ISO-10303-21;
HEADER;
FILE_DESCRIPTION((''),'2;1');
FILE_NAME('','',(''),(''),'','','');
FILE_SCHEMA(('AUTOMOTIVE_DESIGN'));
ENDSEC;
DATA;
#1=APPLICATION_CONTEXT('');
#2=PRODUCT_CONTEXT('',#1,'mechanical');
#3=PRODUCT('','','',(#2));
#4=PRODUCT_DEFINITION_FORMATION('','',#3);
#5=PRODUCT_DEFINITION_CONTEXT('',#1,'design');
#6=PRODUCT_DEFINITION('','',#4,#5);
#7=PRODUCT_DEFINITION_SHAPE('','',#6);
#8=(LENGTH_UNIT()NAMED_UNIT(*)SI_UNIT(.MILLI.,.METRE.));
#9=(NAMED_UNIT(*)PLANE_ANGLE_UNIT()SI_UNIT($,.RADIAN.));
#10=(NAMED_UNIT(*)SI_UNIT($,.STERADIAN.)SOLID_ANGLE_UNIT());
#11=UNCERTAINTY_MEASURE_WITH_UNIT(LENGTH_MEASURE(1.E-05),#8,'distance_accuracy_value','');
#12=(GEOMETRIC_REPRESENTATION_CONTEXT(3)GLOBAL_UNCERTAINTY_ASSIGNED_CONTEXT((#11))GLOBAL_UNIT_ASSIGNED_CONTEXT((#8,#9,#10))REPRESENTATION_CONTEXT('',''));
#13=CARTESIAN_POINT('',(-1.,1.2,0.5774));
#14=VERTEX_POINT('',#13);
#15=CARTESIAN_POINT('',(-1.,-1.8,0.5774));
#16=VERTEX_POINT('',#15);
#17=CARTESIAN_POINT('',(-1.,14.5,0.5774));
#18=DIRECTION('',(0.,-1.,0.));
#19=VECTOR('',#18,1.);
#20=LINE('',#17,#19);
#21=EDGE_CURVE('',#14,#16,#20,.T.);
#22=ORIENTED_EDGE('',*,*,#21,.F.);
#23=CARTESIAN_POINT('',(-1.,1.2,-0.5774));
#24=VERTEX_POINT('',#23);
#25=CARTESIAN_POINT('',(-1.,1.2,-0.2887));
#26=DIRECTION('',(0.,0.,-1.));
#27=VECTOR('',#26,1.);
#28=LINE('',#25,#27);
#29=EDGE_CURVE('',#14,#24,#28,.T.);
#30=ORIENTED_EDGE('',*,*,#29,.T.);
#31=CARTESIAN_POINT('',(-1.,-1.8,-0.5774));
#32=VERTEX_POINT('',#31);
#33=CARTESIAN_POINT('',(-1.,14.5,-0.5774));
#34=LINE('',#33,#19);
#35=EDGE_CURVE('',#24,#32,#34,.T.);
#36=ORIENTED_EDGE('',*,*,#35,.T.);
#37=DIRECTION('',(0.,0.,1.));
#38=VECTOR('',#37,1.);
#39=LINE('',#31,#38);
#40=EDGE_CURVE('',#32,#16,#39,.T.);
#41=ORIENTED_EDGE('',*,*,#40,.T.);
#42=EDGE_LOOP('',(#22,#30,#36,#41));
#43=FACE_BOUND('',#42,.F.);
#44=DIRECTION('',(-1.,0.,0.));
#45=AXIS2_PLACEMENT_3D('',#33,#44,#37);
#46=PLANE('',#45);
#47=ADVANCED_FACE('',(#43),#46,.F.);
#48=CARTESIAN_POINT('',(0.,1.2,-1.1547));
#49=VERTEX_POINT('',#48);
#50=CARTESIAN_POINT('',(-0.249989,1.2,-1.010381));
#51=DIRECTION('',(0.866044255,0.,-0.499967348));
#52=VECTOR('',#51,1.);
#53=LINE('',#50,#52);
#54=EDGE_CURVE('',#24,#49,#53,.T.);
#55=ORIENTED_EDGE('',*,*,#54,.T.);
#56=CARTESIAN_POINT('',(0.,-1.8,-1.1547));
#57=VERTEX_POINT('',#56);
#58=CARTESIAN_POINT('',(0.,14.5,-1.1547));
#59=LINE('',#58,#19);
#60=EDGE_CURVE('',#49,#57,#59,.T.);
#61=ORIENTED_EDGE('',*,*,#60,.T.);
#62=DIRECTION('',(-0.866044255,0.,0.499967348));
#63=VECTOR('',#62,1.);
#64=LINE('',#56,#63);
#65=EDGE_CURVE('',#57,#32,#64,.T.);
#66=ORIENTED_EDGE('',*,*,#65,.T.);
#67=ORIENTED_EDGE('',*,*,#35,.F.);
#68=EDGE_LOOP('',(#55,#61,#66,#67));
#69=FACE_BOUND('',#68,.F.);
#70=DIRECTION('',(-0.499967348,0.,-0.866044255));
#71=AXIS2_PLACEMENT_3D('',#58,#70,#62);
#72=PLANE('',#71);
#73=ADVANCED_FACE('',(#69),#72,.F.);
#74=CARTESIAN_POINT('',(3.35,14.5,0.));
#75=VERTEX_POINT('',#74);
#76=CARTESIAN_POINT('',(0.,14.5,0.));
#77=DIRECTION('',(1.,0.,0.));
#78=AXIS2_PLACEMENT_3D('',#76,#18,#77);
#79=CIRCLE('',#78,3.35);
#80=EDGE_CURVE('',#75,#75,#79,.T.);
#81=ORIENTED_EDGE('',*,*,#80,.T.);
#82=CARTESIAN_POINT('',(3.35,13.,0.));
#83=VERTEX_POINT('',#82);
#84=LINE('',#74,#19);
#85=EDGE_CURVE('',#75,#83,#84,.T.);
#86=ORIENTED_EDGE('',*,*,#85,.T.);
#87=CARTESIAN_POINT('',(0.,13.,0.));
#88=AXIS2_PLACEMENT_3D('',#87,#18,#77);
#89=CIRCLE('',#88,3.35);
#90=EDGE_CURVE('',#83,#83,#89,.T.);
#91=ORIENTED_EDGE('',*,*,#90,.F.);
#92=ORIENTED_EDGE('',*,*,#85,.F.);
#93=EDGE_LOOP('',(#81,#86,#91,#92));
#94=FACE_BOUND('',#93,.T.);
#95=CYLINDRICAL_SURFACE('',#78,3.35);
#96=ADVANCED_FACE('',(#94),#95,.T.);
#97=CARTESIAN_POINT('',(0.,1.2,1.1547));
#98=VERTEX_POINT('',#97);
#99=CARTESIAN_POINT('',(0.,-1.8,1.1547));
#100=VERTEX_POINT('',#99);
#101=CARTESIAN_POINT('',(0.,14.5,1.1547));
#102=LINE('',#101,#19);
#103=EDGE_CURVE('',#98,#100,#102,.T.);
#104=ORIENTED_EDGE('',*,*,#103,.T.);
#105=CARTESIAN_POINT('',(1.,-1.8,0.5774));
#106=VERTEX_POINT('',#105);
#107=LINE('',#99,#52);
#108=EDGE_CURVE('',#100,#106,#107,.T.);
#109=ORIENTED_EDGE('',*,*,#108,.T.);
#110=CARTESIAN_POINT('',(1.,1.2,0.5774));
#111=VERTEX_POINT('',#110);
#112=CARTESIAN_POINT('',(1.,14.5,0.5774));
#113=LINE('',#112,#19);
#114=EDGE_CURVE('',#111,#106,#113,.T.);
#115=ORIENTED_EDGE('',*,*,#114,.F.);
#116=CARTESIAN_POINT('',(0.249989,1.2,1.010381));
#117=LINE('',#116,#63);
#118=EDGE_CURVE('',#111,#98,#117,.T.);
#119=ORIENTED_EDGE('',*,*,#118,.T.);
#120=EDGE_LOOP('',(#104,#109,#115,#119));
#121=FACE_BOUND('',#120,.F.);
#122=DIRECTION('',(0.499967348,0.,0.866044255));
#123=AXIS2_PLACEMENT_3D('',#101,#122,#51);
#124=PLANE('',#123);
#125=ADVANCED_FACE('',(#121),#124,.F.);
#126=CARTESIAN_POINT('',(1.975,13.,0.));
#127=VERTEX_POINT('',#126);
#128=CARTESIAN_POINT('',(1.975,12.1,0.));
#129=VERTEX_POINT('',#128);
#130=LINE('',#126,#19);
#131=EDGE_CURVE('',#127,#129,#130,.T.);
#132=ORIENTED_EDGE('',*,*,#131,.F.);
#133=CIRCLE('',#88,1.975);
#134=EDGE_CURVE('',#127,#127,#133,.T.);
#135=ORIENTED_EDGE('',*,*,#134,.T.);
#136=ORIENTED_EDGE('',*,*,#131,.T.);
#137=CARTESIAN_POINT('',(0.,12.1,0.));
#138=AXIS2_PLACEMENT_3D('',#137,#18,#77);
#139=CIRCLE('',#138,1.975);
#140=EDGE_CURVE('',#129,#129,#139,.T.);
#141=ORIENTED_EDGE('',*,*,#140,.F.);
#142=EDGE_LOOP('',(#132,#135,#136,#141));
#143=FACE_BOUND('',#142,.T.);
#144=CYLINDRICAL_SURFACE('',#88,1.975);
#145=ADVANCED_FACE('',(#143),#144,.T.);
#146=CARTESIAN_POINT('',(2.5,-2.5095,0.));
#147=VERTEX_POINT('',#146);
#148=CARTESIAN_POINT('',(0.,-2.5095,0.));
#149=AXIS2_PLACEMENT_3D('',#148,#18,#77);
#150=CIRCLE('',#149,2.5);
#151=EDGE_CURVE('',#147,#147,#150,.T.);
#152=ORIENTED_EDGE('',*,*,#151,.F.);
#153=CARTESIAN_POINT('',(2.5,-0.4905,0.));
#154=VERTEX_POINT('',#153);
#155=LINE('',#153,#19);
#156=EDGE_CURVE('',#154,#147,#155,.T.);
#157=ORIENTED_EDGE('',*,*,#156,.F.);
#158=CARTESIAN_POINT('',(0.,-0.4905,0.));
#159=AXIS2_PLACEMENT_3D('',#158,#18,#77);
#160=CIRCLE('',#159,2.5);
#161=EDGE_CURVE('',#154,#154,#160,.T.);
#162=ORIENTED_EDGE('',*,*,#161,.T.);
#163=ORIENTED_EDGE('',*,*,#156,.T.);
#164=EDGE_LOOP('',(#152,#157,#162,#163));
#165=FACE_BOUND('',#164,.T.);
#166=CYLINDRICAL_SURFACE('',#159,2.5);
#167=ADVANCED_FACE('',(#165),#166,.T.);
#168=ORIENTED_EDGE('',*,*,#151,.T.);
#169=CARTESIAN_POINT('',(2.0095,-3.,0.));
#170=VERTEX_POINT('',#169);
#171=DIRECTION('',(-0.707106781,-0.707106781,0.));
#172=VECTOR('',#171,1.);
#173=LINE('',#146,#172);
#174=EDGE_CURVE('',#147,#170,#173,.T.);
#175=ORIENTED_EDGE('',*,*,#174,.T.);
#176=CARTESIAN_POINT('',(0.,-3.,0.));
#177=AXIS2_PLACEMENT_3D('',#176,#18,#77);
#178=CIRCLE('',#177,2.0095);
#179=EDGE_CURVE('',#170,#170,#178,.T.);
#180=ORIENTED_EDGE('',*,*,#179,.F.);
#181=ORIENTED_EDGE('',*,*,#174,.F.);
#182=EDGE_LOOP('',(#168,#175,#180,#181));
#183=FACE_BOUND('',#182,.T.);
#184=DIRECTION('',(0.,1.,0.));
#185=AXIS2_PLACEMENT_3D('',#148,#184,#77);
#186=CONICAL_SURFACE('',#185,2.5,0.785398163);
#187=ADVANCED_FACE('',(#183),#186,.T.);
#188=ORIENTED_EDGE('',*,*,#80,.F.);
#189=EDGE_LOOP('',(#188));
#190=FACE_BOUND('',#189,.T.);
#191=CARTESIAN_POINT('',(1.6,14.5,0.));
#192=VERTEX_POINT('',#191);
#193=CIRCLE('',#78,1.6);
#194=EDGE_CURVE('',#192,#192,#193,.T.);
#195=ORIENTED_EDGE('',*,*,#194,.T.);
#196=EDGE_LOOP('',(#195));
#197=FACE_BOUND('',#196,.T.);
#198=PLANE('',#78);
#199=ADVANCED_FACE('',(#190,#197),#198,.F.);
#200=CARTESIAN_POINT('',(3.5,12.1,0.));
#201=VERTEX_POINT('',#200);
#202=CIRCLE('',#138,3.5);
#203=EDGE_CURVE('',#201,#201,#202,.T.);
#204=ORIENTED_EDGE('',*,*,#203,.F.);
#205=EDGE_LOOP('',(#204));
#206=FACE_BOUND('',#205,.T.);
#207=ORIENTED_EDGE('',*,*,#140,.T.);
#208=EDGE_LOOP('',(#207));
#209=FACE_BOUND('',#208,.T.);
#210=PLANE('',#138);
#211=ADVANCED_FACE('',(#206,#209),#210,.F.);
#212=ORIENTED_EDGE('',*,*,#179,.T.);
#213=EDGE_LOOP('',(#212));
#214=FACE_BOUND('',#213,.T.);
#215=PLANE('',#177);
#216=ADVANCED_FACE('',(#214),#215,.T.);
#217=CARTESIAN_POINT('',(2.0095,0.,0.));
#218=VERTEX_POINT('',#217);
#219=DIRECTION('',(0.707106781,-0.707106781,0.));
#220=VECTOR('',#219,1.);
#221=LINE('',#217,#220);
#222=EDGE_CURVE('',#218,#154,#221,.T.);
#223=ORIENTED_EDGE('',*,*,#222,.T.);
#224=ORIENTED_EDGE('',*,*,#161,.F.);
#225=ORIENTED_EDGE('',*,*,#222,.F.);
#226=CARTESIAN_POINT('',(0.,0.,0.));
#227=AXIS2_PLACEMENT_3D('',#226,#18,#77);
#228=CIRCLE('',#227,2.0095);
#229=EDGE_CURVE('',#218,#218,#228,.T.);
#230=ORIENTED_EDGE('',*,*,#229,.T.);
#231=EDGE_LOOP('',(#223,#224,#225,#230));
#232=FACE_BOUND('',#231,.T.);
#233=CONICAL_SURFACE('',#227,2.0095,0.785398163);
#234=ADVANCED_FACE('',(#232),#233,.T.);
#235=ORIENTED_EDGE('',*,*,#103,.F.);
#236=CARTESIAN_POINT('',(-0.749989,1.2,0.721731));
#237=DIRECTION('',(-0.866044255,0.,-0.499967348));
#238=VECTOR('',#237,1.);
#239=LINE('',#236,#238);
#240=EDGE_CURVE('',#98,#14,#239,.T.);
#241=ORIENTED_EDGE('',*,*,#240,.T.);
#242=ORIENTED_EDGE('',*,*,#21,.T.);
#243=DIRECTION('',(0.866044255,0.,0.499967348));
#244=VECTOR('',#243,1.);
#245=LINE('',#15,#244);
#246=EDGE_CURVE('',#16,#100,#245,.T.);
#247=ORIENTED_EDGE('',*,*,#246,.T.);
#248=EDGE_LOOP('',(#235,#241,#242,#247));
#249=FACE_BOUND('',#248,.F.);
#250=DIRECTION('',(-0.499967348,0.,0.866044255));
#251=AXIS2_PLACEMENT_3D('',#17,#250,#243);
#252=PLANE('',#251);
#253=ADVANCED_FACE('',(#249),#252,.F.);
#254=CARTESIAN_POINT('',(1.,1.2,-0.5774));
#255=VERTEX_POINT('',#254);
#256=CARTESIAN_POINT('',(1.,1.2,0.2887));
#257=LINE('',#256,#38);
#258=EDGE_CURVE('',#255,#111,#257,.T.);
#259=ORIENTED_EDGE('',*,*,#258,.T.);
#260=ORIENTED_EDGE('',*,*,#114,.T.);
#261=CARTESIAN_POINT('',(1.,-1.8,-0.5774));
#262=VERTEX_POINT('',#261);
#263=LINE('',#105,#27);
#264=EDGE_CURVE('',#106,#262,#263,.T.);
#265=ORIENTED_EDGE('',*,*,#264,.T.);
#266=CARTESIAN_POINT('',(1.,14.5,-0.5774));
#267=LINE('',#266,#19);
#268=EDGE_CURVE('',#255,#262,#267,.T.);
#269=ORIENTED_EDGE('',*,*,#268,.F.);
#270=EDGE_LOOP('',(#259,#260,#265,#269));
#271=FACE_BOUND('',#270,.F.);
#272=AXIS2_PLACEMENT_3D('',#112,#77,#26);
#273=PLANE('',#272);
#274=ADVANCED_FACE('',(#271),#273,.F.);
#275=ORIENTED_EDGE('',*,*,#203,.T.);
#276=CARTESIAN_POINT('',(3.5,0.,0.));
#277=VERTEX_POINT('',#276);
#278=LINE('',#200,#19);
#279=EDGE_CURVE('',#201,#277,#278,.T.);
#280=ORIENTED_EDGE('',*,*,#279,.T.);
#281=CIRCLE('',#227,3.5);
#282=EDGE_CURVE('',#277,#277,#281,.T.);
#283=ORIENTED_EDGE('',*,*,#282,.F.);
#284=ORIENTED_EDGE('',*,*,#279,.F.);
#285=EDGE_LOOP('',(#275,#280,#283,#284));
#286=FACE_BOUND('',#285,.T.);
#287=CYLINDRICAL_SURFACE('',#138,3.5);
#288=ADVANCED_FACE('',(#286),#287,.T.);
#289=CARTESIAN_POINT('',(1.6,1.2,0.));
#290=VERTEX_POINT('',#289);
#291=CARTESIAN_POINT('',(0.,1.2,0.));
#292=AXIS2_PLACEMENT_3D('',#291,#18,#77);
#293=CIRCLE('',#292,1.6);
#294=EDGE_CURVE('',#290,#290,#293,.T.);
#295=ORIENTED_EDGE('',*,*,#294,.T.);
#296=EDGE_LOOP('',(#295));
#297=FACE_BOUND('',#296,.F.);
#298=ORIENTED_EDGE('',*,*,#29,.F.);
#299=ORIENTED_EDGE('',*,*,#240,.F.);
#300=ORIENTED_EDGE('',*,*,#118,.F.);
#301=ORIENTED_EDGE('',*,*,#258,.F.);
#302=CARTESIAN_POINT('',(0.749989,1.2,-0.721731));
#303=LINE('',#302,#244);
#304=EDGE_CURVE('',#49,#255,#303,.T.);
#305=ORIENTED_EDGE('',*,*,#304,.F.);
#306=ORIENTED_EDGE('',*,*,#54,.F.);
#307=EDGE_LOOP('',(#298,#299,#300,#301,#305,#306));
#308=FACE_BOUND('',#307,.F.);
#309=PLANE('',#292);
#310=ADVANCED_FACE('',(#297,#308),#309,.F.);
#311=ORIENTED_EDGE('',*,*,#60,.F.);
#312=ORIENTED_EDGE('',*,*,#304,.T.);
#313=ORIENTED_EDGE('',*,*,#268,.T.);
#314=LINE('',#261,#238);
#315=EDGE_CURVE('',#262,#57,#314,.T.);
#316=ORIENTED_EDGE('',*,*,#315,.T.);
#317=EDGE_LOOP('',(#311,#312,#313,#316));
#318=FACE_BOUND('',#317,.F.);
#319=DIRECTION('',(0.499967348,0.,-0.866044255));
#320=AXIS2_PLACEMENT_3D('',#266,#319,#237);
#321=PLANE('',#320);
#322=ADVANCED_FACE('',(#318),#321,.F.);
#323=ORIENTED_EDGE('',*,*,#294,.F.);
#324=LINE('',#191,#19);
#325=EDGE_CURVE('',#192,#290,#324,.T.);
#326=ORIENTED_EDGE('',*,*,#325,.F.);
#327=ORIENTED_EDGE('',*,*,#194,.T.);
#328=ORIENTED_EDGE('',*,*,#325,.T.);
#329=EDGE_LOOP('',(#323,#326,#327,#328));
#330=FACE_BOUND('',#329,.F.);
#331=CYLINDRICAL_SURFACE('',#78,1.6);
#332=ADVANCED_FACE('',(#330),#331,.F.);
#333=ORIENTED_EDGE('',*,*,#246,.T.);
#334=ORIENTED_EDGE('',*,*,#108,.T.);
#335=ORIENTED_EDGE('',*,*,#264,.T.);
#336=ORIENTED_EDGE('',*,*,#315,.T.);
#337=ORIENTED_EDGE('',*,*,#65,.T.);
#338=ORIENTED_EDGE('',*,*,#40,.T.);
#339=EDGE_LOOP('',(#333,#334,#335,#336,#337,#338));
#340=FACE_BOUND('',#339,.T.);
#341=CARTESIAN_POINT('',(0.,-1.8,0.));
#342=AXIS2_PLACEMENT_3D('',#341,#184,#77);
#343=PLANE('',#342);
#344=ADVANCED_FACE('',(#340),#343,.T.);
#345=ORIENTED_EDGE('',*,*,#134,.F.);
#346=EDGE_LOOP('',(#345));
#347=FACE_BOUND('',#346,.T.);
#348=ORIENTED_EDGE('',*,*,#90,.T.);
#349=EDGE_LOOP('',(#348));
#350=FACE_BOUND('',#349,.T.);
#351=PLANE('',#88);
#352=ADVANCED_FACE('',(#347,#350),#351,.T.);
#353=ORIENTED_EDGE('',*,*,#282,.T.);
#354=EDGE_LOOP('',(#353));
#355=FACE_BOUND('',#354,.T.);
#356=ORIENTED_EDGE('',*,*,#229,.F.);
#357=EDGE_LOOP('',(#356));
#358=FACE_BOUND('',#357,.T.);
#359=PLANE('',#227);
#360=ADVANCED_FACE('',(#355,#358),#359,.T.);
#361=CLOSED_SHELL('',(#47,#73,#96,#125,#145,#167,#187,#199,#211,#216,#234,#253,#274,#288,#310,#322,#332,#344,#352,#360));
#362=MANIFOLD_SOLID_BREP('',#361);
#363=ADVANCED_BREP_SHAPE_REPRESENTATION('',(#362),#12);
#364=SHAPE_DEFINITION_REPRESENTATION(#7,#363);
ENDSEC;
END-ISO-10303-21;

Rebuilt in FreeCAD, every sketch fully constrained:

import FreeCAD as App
import Part
import Sketcher
from FreeCAD import Vector
Q = App.Units.Quantity

doc = App.newDocument("Part")
body = doc.addObject("PartDesign::Body", "Body")

# Sketch on XY plane
sketch1 = body.newObject("Sketcher::SketchObject", "Sketch")
sketch1.AttachmentSupport = (doc.getObject("XY_Plane"), [""])
sketch1.MapMode = "FlatFace"
sketch1.addGeometry(Part.LineSegment(Vector(0, 14.5, 0), Vector(0, -3, 0)), False)
sketch1.addGeometry(Part.LineSegment(Vector(0, -3, 0), Vector(2.0095, -3, 0)), False)
sketch1.addGeometry(Part.LineSegment(Vector(2.0095, -3, 0), Vector(2.5, -2.5095, 0)), False)
sketch1.addGeometry(Part.LineSegment(Vector(2.5, -2.5095, 0), Vector(2.5, -0.4905, 0)), False)
sketch1.addGeometry(Part.LineSegment(Vector(2.5, -0.4905, 0), Vector(2.0095, 0, 0)), False)
sketch1.addGeometry(Part.LineSegment(Vector(2.0095, 0, 0), Vector(3.5, 0, 0)), False)
sketch1.addGeometry(Part.LineSegment(Vector(3.5, 0, 0), Vector(3.5, 12.1, 0)), False)
sketch1.addGeometry(Part.LineSegment(Vector(3.5, 12.1, 0), Vector(1.975, 12.1, 0)), False)
sketch1.addGeometry(Part.LineSegment(Vector(1.975, 12.1, 0), Vector(1.975, 13, 0)), False)
sketch1.addGeometry(Part.LineSegment(Vector(1.975, 13, 0), Vector(3.35, 13, 0)), False)
sketch1.addGeometry(Part.LineSegment(Vector(3.35, 13, 0), Vector(3.35, 14.5, 0)), False)
sketch1.addGeometry(Part.LineSegment(Vector(3.35, 14.5, 0), Vector(0, 14.5, 0)), False)
sketch1.addConstraint(Sketcher.Constraint("Coincident", 0, 2, 1, 1))
sketch1.addConstraint(Sketcher.Constraint("Coincident", 1, 2, 2, 1))
sketch1.addConstraint(Sketcher.Constraint("Coincident", 2, 2, 3, 1))
sketch1.addConstraint(Sketcher.Constraint("Coincident", 3, 2, 4, 1))
sketch1.addConstraint(Sketcher.Constraint("Coincident", 4, 2, 5, 1))
sketch1.addConstraint(Sketcher.Constraint("Coincident", 5, 2, 6, 1))
sketch1.addConstraint(Sketcher.Constraint("Coincident", 6, 2, 7, 1))
sketch1.addConstraint(Sketcher.Constraint("Coincident", 7, 2, 8, 1))
sketch1.addConstraint(Sketcher.Constraint("Coincident", 8, 2, 9, 1))
sketch1.addConstraint(Sketcher.Constraint("Coincident", 9, 2, 10, 1))
sketch1.addConstraint(Sketcher.Constraint("Coincident", 10, 2, 11, 1))
sketch1.addConstraint(Sketcher.Constraint("Coincident", 11, 2, 0, 1))
sketch1.addConstraint(Sketcher.Constraint("Vertical", 0))
sketch1.addConstraint(Sketcher.Constraint("Horizontal", 1))
sketch1.addConstraint(Sketcher.Constraint("Vertical", 3))
sketch1.addConstraint(Sketcher.Constraint("Horizontal", 5))
sketch1.addConstraint(Sketcher.Constraint("Vertical", 6))
sketch1.addConstraint(Sketcher.Constraint("Horizontal", 7))
sketch1.addConstraint(Sketcher.Constraint("Vertical", 8))
sketch1.addConstraint(Sketcher.Constraint("Horizontal", 9))
sketch1.addConstraint(Sketcher.Constraint("Vertical", 10))
sketch1.addConstraint(Sketcher.Constraint("Horizontal", 11))
sketch1.addConstraint(Sketcher.Constraint("PointOnObject", 0, 2, -2))
sketch1.addConstraint(Sketcher.Constraint("PointOnObject", 4, 2, -1))
sketch1.addConstraint(Sketcher.Constraint("Perpendicular", 2, 4))
sketch1.addConstraint(Sketcher.Constraint("Vertical", 1, 2, 4, 2))
sketch1.addConstraint(Sketcher.Constraint("Equal", 2, 4))
sketch1.addConstraint(Sketcher.Constraint("DistanceY", 0, 2, 0, 1, Q("17.5 mm")))
sketch1.addConstraint(Sketcher.Constraint("DistanceY", 6, 1, 6, 2, Q("12.1 mm")))
sketch1.addConstraint(Sketcher.Constraint("DistanceY", 8, 1, 8, 2, Q("0.9 mm")))
sketch1.addConstraint(Sketcher.Constraint("DistanceY", 10, 1, 10, 2, Q("1.5 mm")))
sketch1.addConstraint(Sketcher.Constraint("DistanceX", 3, 2, 5, 2, Q("1 mm")))
sketch1.addConstraint(Sketcher.Constraint("DistanceX", 11, 2, 11, 1, Q("3.35 mm")))
sketch1.addConstraint(Sketcher.Constraint("DistanceX", -1, 1, 2, 2, Q("2.5 mm")))
sketch1.addConstraint(Sketcher.Constraint("DistanceX", 7, 2, 7, 1, Q("1.525 mm")))
sketch1.addConstraint(Sketcher.Constraint("DistanceY", 3, 1, 3, 2, Q("2.019 mm")))
revolution = body.newObject("PartDesign::Revolution", "Revolution")
revolution.Profile = sketch1
revolution.ReferenceAxis = (sketch1, ["V_Axis"])
revolution.Angle = 360

# Sketch on XY plane
sketch2 = body.newObject("Sketcher::SketchObject", "Sketch001")
sketch2.AttachmentSupport = (doc.getObject("XY_Plane"), [""])
sketch2.MapMode = "FlatFace"
sketch2.addGeometry(Part.LineSegment(Vector(0, 14.5, 0), Vector(0, 1.2, 0)), False)
sketch2.addGeometry(Part.LineSegment(Vector(0, 1.2, 0), Vector(1.6, 1.2, 0)), False)
sketch2.addGeometry(Part.LineSegment(Vector(1.6, 1.2, 0), Vector(1.6, 14.5, 0)), False)
sketch2.addGeometry(Part.LineSegment(Vector(1.6, 14.5, 0), Vector(0, 14.5, 0)), False)
sketch2.addConstraint(Sketcher.Constraint("Coincident", 0, 2, 1, 1))
sketch2.addConstraint(Sketcher.Constraint("Coincident", 1, 2, 2, 1))
sketch2.addConstraint(Sketcher.Constraint("Coincident", 2, 2, 3, 1))
sketch2.addConstraint(Sketcher.Constraint("Coincident", 3, 2, 0, 1))
sketch2.addConstraint(Sketcher.Constraint("Vertical", 0))
sketch2.addConstraint(Sketcher.Constraint("Horizontal", 1))
sketch2.addConstraint(Sketcher.Constraint("Vertical", 2))
sketch2.addConstraint(Sketcher.Constraint("Horizontal", 3))
sketch2.addConstraint(Sketcher.Constraint("PointOnObject", 0, 2, -2))
sketch2.addConstraint(Sketcher.Constraint("DistanceX", 1, 1, 1, 2, Q("1.6 mm")))
sketch2.addConstraint(Sketcher.Constraint("DistanceY", 0, 2, 0, 1, Q("13.3 mm")))
sketch2.addConstraint(Sketcher.Constraint("DistanceY", -1, 1, 0, 2, Q("1.2 mm")))
groove = body.newObject("PartDesign::Groove", "Groove")
groove.Profile = sketch2
groove.ReferenceAxis = (sketch2, ["V_Axis"])
groove.Angle = 360

# Sketch on XZ plane
sketch3 = body.newObject("Sketcher::SketchObject", "Sketch002")
sketch3.AttachmentSupport = (doc.getObject("XZ_Plane"), [""])
sketch3.MapMode = "FlatFace"
sketch3.AttachmentOffset = App.Placement(Vector(0, 0, -14.5), App.Rotation())
sketch3.addGeometry(Part.LineSegment(Vector(0, -1.1547, 0), Vector(-1, -0.5774, 0)), False)
sketch3.addGeometry(Part.LineSegment(Vector(-1, -0.5774, 0), Vector(-1, 0.5774, 0)), False)
sketch3.addGeometry(Part.LineSegment(Vector(-1, 0.5774, 0), Vector(0, 1.1547, 0)), False)
sketch3.addGeometry(Part.LineSegment(Vector(0, 1.1547, 0), Vector(1, 0.5774, 0)), False)
sketch3.addGeometry(Part.LineSegment(Vector(1, 0.5774, 0), Vector(1, -0.5774, 0)), False)
sketch3.addGeometry(Part.LineSegment(Vector(1, -0.5774, 0), Vector(0, -1.1547, 0)), False)
sketch3.addConstraint(Sketcher.Constraint("Coincident", 0, 2, 1, 1))
sketch3.addConstraint(Sketcher.Constraint("Coincident", 1, 2, 2, 1))
sketch3.addConstraint(Sketcher.Constraint("Coincident", 2, 2, 3, 1))
sketch3.addConstraint(Sketcher.Constraint("Coincident", 3, 2, 4, 1))
sketch3.addConstraint(Sketcher.Constraint("Coincident", 4, 2, 5, 1))
sketch3.addConstraint(Sketcher.Constraint("Coincident", 5, 2, 0, 1))
sketch3.addConstraint(Sketcher.Constraint("Vertical", 1))
sketch3.addConstraint(Sketcher.Constraint("Vertical", 4))
sketch3.addConstraint(Sketcher.Constraint("Symmetric", 0, 2, 3, 2, -1, 1))
sketch3.addConstraint(Sketcher.Constraint("Symmetric", 2, 2, 5, 2, -1, 1))
sketch3.addConstraint(Sketcher.Constraint("PointOnObject", 2, 2, -2))
sketch3.addConstraint(Sketcher.Constraint("Parallel", 2, 5))
sketch3.addConstraint(Sketcher.Constraint("Horizontal", 1, 2, 3, 2))
sketch3.addConstraint(Sketcher.Constraint("DistanceX", 0, 2, -1, 1, Q("1 mm")))
sketch3.addConstraint(Sketcher.Constraint("DistanceY", 1, 1, 1, 2, Q("1.1548 mm")))
sketch3.addConstraint(Sketcher.Constraint("DistanceY", 0, 2, 2, 2, Q("1.732 mm")))
pocket1 = body.newObject("PartDesign::Pocket", "Pocket")
pocket1.Profile = sketch3
pocket1.Length = 16.3
pocket1.Reversed = True

doc.recompute()
